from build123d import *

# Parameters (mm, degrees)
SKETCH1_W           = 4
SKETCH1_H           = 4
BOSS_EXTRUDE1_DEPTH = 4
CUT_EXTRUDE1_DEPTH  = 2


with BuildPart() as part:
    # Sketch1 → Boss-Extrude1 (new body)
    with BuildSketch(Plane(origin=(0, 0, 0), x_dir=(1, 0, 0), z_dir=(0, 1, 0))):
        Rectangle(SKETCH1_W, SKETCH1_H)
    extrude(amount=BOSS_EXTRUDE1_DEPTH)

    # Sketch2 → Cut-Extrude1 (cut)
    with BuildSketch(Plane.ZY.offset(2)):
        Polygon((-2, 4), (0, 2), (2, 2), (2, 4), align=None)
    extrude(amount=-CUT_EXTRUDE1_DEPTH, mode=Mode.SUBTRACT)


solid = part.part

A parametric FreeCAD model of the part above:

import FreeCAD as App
import Part
import Sketcher
from FreeCAD import Vector
Q = App.Units.Quantity


def add_polygon(sketch, points):
    """Adds a closed chain of lines whose ends are joined by coincident constraints."""
    first, n = sketch.GeometryCount, len(points)
    for a, b in zip(points, points[1:] + points[:1]):
        sketch.addGeometry(Part.LineSegment(App.Vector(*a, 0), App.Vector(*b, 0)), False)
    for i in range(n):
        sketch.addConstraint(Sketcher.Constraint("Coincident", first + i, 2, first + (i + 1) % n, 1))

doc = App.newDocument("Part")
body = doc.addObject("PartDesign::Body", "Body")

# Sketch on XZ plane
sketch1 = body.newObject("Sketcher::SketchObject", "Sketch")
sketch1.AttachmentSupport = (doc.getObject("XZ_Plane"), [""])
sketch1.MapMode = "FlatFace"
add_polygon(sketch1, [(-2, -2), (-2, 2), (2, 2), (2, -2)])  # lines 0-3
sketch1.addConstraint([
    Sketcher.Constraint("Vertical", 0),
    Sketcher.Constraint("Horizontal", 1),
    Sketcher.Constraint("Vertical", 2),
    Sketcher.Constraint("Horizontal", 3),
    Sketcher.Constraint("Symmetric", 0, 2, 2, 2, -1, 1),
    Sketcher.Constraint("Equal", 3, 0),
    Sketcher.Constraint("DistanceX", 1, 1, 1, 2, Q("4 mm")),
])
pad1 = body.newObject("PartDesign::Pad", "Pad")
pad1.Profile = sketch1
pad1.Length = 4
pad1.Reversed = True

# Sketch on YZ plane
sketch2 = body.newObject("Sketcher::SketchObject", "Sketch001")
sketch2.AttachmentSupport = (doc.getObject("YZ_Plane"), [""])
sketch2.MapMode = "FlatFace"
sketch2.AttachmentOffset = App.Placement(Vector(0, 0, -2), App.Rotation())
add_polygon(sketch2, [(4, -2), (2, 0), (2, 2), (4, 2)])  # lines 0-3
sketch2.addConstraint([
    Sketcher.Constraint("Vertical", 1),
    Sketcher.Constraint("Horizontal", 2),
    Sketcher.Constraint("Vertical", 3),
    Sketcher.Constraint("PointOnObject", 0, 2, -1),
    Sketcher.Constraint("Equal", 2, 1),
    Sketcher.Constraint("DistanceX", 2, 1, 2, 2, Q("2 mm")),
    Sketcher.Constraint("DistanceY", 3, 2, 3, 1, Q("4 mm")),
    Sketcher.Constraint("DistanceX", -1, 1, 0, 2, Q("2 mm")),
])
pocket1 = body.newObject("PartDesign::Pocket", "Pocket")
pocket1.Profile = sketch2
pocket1.Length = 2
pocket1.Reversed = True

doc.recompute()
